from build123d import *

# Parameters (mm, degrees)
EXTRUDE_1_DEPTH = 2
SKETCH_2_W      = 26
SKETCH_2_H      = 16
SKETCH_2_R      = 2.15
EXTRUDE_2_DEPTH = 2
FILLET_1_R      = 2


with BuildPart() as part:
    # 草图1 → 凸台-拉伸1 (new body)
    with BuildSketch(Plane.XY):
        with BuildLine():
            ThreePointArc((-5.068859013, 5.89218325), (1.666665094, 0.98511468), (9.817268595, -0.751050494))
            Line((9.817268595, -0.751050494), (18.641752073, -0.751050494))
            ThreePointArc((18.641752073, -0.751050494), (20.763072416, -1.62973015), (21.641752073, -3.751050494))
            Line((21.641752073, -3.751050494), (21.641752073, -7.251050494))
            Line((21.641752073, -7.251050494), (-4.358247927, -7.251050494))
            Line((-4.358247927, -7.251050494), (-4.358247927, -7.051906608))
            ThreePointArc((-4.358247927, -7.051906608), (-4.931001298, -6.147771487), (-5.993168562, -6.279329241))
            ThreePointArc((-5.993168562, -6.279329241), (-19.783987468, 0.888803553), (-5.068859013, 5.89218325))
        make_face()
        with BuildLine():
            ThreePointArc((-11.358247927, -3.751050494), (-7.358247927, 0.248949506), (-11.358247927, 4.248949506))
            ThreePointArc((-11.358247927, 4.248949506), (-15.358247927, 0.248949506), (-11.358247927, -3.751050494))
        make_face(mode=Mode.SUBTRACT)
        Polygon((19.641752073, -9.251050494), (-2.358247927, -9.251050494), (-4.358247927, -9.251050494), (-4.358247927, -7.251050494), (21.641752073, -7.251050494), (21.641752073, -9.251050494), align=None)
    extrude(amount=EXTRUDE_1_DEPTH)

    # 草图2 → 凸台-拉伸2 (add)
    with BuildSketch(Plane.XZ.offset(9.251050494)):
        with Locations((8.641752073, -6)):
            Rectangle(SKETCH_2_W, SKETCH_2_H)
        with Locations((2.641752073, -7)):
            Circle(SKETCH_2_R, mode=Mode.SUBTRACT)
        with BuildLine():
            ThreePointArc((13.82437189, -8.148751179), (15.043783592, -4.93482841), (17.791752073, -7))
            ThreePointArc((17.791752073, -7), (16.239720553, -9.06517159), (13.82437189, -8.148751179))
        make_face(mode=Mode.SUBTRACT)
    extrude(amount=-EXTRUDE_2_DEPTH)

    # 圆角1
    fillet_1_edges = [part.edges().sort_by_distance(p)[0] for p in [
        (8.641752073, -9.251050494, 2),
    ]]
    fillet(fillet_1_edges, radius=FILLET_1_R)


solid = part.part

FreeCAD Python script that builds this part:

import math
import FreeCAD as App
import Part
import Sketcher

V = App.Vector


def edges_at(feature, points):
    """Names of the edges that pass closest to the given points."""
    edges = feature.Shape.Edges
    near = lambda p: min(range(len(edges)), key=lambda i: edges[i].distToShape(Part.Vertex(*p))[0])
    return sorted({f"Edge{near(p) + 1}" for p in points})

doc = App.newDocument("Part")
body = doc.addObject("PartDesign::Body", "Body")

# Sketch on XY plane
sketch1 = body.newObject("Sketcher::SketchObject", "Sketch")
sketch1.AttachmentSupport = (doc.getObject("XY_Plane"), [""])
sketch1.MapMode = "FlatFace"
sketch1.addGeometry(Part.ArcOfCircle(Part.Circle(V(9.817269, 19.24895, 0), V(0, 0, 1), 20), math.radians(-138.099557), math.radians(-90)), False)
sketch1.addGeometry(Part.ArcOfCircle(Part.Circle(V(-11.358248, 0.24895, 0), V(0, 0, 1), 8.45), math.radians(41.900443), math.radians(309.414098)), False)
sketch1.addGeometry(Part.ArcOfCircle(Part.Circle(V(-5.358248, -7.051907, 0), V(0, 0, 1), 1), math.radians(0), math.radians(129.414098)), False)
sketch1.addGeometry(Part.LineSegment(V(-4.358248, -7.051907, 0), V(-4.358248, -9.25105, 0)), False)
sketch1.addGeometry(Part.LineSegment(V(-4.358248, -9.25105, 0), V(21.641752, -9.25105, 0)), False)
sketch1.addGeometry(Part.LineSegment(V(21.641752, -9.25105, 0), V(21.641752, -3.75105, 0)), False)
sketch1.addGeometry(Part.ArcOfCircle(Part.Circle(V(18.641752, -3.75105, 0), V(0, 0, 1), 3), math.radians(0), math.radians(90)), False)
sketch1.addGeometry(Part.LineSegment(V(18.641752, -0.75105, 0), V(9.817269, -0.75105, 0)), False)
sketch1.addGeometry(Part.Circle(V(-11.358248, 0.24895, 0), V(0, 0, 1), 4), False)
sketch1.addConstraint(Sketcher.Constraint("Tangent", 0, 1, 1, 1))
sketch1.addConstraint(Sketcher.Constraint("Tangent", 1, 2, 2, 2))
sketch1.addConstraint(Sketcher.Constraint("Tangent", 2, 1, 3, 1))
sketch1.addConstraint(Sketcher.Constraint("Coincident", 3, 2, 4, 1))
sketch1.addConstraint(Sketcher.Constraint("Coincident", 4, 2, 5, 1))
sketch1.addConstraint(Sketcher.Constraint("Tangent", 5, 2, 6, 1))
sketch1.addConstraint(Sketcher.Constraint("Tangent", 6, 2, 7, 1))
sketch1.addConstraint(Sketcher.Constraint("Tangent", 7, 2, 0, 2))
sketch1.addConstraint(Sketcher.Constraint("Vertical", 3))
sketch1.addConstraint(Sketcher.Constraint("Horizontal", 4))
sketch1.addConstraint(Sketcher.Constraint("Vertical", 5))
sketch1.addConstraint(Sketcher.Constraint("Horizontal", 7))
sketch1.addConstraint(Sketcher.Constraint("Coincident", 8, 3, 1, 3))
sketch1.addConstraint(Sketcher.Constraint("Diameter", 8, 8.0))
sketch1.addConstraint(Sketcher.Constraint("Radius", 0, 20.0))
sketch1.addConstraint(Sketcher.Constraint("Radius", 2, 1.0))
sketch1.addConstraint(Sketcher.Constraint("Radius", 6, 3.0))
sketch1.addConstraint(Sketcher.Constraint("DistanceX", 4, 1, 4, 2, 26.0))
sketch1.addConstraint(Sketcher.Constraint("Radius", 1, 8.45))
sketch1.addConstraint(Sketcher.Constraint("DistanceY", 5, 1, 5, 2, 5.5))
sketch1.addConstraint(Sketcher.Constraint("DistanceY", 1, 3, 0, 3, 19.0))
sketch1.addConstraint(Sketcher.Constraint("DistanceX", 1, 3, 2, 3, 6.0))
sketch1.addConstraint(Sketcher.Constraint("DistanceX", -1, 1, 0, 3, 9.817269))
sketch1.addConstraint(Sketcher.Constraint("DistanceY", -1, 1, 0, 3, 19.24895))
pad1 = body.newObject("PartDesign::Pad", "Pad")
pad1.Profile = sketch1
pad1.Length = 2

# Sketch on XZ plane
sketch2 = body.newObject("Sketcher::SketchObject", "Sketch001")
sketch2.AttachmentSupport = (doc.getObject("XZ_Plane"), [""])
sketch2.MapMode = "FlatFace"
sketch2.AttachmentOffset = App.Placement(V(0, 0, 9.25105), App.Rotation())
sketch2.addGeometry(Part.LineSegment(V(-4.358248, 2, 0), V(-4.358248, -14, 0)), False)
sketch2.addGeometry(Part.LineSegment(V(-4.358248, -14, 0), V(21.641752, -14, 0)), False)
sketch2.addGeometry(Part.LineSegment(V(21.641752, -14, 0), V(21.641752, 2, 0)), False)
sketch2.addGeometry(Part.LineSegment(V(21.641752, 2, 0), V(-4.358248, 2, 0)), False)
sketch2.addGeometry(Part.Circle(V(2.641752, -7, 0), V(0, 0, 1), 2.15), False)
sketch2.addGeometry(Part.ArcOfCircle(Part.Circle(V(15.641752, -7, 0), V(0, 0, 1), 2.15), math.radians(-147.703354), math.radians(0)), False)
sketch2.addGeometry(Part.ArcOfCircle(Part.Circle(V(15.641752, -7, 0), V(0, 0, 1), 2.15), math.radians(0), math.radians(212.296646)), False)
sketch2.addConstraint(Sketcher.Constraint("Coincident", 0, 2, 1, 1))
sketch2.addConstraint(Sketcher.Constraint("Coincident", 1, 2, 2, 1))
sketch2.addConstraint(Sketcher.Constraint("Coincident", 2, 2, 3, 1))
sketch2.addConstraint(Sketcher.Constraint("Coincident", 3, 2, 0, 1))
sketch2.addConstraint(Sketcher.Constraint("Tangent", 5, 1, 6, 2))
sketch2.addConstraint(Sketcher.Constraint("Coincident", 6, 1, 5, 2))
sketch2.addConstraint(Sketcher.Constraint("Vertical", 0))
sketch2.addConstraint(Sketcher.Constraint("Horizontal", 1))
sketch2.addConstraint(Sketcher.Constraint("Vertical", 2))
sketch2.addConstraint(Sketcher.Constraint("Horizontal", 3))
sketch2.addConstraint(Sketcher.Constraint("Equal", 4, 5))
sketch2.addConstraint(Sketcher.Constraint("Horizontal", 4, 3, 5, 3))
sketch2.addConstraint(Sketcher.Constraint("Horizontal", 5, 3, 6, 1))
sketch2.addConstraint(Sketcher.Constraint("Diameter", 4, 4.3))
sketch2.addConstraint(Sketcher.Constraint("DistanceX", 1, 1, 1, 2, 26.0))
sketch2.addConstraint(Sketcher.Constraint("DistanceY", 0, 2, 0, 1, 16.0))
sketch2.addConstraint(Sketcher.Constraint("DistanceY", 4, 3, -1, 1, 7.0))
sketch2.addConstraint(Sketcher.Constraint("DistanceY", 0, 2, -1, 1, 14.0))
sketch2.addConstraint(Sketcher.Constraint("DistanceX", 4, 3, 5, 3, 13.0))
sketch2.addConstraint(Sketcher.Constraint("DistanceX", 0, 2, 4, 3, 7.0))
sketch2.addConstraint(Sketcher.Constraint("DistanceX", -1, 1, 5, 1, 13.824372))
sketch2.addConstraint(Sketcher.Constraint("DistanceY", 5, 1, -1, 1, 8.148751))
pad2 = body.newObject("PartDesign::Pad", "Pad001")
pad2.Profile = sketch2
pad2.Length = 2
pad2.Reversed = True
doc.recompute()

fillet = body.newObject("PartDesign::Fillet", "Fillet")
fillet.Base = (pad2, edges_at(pad2, [(8.642, -9.251, 2)]))
fillet.Radius = 2

doc.recompute()
